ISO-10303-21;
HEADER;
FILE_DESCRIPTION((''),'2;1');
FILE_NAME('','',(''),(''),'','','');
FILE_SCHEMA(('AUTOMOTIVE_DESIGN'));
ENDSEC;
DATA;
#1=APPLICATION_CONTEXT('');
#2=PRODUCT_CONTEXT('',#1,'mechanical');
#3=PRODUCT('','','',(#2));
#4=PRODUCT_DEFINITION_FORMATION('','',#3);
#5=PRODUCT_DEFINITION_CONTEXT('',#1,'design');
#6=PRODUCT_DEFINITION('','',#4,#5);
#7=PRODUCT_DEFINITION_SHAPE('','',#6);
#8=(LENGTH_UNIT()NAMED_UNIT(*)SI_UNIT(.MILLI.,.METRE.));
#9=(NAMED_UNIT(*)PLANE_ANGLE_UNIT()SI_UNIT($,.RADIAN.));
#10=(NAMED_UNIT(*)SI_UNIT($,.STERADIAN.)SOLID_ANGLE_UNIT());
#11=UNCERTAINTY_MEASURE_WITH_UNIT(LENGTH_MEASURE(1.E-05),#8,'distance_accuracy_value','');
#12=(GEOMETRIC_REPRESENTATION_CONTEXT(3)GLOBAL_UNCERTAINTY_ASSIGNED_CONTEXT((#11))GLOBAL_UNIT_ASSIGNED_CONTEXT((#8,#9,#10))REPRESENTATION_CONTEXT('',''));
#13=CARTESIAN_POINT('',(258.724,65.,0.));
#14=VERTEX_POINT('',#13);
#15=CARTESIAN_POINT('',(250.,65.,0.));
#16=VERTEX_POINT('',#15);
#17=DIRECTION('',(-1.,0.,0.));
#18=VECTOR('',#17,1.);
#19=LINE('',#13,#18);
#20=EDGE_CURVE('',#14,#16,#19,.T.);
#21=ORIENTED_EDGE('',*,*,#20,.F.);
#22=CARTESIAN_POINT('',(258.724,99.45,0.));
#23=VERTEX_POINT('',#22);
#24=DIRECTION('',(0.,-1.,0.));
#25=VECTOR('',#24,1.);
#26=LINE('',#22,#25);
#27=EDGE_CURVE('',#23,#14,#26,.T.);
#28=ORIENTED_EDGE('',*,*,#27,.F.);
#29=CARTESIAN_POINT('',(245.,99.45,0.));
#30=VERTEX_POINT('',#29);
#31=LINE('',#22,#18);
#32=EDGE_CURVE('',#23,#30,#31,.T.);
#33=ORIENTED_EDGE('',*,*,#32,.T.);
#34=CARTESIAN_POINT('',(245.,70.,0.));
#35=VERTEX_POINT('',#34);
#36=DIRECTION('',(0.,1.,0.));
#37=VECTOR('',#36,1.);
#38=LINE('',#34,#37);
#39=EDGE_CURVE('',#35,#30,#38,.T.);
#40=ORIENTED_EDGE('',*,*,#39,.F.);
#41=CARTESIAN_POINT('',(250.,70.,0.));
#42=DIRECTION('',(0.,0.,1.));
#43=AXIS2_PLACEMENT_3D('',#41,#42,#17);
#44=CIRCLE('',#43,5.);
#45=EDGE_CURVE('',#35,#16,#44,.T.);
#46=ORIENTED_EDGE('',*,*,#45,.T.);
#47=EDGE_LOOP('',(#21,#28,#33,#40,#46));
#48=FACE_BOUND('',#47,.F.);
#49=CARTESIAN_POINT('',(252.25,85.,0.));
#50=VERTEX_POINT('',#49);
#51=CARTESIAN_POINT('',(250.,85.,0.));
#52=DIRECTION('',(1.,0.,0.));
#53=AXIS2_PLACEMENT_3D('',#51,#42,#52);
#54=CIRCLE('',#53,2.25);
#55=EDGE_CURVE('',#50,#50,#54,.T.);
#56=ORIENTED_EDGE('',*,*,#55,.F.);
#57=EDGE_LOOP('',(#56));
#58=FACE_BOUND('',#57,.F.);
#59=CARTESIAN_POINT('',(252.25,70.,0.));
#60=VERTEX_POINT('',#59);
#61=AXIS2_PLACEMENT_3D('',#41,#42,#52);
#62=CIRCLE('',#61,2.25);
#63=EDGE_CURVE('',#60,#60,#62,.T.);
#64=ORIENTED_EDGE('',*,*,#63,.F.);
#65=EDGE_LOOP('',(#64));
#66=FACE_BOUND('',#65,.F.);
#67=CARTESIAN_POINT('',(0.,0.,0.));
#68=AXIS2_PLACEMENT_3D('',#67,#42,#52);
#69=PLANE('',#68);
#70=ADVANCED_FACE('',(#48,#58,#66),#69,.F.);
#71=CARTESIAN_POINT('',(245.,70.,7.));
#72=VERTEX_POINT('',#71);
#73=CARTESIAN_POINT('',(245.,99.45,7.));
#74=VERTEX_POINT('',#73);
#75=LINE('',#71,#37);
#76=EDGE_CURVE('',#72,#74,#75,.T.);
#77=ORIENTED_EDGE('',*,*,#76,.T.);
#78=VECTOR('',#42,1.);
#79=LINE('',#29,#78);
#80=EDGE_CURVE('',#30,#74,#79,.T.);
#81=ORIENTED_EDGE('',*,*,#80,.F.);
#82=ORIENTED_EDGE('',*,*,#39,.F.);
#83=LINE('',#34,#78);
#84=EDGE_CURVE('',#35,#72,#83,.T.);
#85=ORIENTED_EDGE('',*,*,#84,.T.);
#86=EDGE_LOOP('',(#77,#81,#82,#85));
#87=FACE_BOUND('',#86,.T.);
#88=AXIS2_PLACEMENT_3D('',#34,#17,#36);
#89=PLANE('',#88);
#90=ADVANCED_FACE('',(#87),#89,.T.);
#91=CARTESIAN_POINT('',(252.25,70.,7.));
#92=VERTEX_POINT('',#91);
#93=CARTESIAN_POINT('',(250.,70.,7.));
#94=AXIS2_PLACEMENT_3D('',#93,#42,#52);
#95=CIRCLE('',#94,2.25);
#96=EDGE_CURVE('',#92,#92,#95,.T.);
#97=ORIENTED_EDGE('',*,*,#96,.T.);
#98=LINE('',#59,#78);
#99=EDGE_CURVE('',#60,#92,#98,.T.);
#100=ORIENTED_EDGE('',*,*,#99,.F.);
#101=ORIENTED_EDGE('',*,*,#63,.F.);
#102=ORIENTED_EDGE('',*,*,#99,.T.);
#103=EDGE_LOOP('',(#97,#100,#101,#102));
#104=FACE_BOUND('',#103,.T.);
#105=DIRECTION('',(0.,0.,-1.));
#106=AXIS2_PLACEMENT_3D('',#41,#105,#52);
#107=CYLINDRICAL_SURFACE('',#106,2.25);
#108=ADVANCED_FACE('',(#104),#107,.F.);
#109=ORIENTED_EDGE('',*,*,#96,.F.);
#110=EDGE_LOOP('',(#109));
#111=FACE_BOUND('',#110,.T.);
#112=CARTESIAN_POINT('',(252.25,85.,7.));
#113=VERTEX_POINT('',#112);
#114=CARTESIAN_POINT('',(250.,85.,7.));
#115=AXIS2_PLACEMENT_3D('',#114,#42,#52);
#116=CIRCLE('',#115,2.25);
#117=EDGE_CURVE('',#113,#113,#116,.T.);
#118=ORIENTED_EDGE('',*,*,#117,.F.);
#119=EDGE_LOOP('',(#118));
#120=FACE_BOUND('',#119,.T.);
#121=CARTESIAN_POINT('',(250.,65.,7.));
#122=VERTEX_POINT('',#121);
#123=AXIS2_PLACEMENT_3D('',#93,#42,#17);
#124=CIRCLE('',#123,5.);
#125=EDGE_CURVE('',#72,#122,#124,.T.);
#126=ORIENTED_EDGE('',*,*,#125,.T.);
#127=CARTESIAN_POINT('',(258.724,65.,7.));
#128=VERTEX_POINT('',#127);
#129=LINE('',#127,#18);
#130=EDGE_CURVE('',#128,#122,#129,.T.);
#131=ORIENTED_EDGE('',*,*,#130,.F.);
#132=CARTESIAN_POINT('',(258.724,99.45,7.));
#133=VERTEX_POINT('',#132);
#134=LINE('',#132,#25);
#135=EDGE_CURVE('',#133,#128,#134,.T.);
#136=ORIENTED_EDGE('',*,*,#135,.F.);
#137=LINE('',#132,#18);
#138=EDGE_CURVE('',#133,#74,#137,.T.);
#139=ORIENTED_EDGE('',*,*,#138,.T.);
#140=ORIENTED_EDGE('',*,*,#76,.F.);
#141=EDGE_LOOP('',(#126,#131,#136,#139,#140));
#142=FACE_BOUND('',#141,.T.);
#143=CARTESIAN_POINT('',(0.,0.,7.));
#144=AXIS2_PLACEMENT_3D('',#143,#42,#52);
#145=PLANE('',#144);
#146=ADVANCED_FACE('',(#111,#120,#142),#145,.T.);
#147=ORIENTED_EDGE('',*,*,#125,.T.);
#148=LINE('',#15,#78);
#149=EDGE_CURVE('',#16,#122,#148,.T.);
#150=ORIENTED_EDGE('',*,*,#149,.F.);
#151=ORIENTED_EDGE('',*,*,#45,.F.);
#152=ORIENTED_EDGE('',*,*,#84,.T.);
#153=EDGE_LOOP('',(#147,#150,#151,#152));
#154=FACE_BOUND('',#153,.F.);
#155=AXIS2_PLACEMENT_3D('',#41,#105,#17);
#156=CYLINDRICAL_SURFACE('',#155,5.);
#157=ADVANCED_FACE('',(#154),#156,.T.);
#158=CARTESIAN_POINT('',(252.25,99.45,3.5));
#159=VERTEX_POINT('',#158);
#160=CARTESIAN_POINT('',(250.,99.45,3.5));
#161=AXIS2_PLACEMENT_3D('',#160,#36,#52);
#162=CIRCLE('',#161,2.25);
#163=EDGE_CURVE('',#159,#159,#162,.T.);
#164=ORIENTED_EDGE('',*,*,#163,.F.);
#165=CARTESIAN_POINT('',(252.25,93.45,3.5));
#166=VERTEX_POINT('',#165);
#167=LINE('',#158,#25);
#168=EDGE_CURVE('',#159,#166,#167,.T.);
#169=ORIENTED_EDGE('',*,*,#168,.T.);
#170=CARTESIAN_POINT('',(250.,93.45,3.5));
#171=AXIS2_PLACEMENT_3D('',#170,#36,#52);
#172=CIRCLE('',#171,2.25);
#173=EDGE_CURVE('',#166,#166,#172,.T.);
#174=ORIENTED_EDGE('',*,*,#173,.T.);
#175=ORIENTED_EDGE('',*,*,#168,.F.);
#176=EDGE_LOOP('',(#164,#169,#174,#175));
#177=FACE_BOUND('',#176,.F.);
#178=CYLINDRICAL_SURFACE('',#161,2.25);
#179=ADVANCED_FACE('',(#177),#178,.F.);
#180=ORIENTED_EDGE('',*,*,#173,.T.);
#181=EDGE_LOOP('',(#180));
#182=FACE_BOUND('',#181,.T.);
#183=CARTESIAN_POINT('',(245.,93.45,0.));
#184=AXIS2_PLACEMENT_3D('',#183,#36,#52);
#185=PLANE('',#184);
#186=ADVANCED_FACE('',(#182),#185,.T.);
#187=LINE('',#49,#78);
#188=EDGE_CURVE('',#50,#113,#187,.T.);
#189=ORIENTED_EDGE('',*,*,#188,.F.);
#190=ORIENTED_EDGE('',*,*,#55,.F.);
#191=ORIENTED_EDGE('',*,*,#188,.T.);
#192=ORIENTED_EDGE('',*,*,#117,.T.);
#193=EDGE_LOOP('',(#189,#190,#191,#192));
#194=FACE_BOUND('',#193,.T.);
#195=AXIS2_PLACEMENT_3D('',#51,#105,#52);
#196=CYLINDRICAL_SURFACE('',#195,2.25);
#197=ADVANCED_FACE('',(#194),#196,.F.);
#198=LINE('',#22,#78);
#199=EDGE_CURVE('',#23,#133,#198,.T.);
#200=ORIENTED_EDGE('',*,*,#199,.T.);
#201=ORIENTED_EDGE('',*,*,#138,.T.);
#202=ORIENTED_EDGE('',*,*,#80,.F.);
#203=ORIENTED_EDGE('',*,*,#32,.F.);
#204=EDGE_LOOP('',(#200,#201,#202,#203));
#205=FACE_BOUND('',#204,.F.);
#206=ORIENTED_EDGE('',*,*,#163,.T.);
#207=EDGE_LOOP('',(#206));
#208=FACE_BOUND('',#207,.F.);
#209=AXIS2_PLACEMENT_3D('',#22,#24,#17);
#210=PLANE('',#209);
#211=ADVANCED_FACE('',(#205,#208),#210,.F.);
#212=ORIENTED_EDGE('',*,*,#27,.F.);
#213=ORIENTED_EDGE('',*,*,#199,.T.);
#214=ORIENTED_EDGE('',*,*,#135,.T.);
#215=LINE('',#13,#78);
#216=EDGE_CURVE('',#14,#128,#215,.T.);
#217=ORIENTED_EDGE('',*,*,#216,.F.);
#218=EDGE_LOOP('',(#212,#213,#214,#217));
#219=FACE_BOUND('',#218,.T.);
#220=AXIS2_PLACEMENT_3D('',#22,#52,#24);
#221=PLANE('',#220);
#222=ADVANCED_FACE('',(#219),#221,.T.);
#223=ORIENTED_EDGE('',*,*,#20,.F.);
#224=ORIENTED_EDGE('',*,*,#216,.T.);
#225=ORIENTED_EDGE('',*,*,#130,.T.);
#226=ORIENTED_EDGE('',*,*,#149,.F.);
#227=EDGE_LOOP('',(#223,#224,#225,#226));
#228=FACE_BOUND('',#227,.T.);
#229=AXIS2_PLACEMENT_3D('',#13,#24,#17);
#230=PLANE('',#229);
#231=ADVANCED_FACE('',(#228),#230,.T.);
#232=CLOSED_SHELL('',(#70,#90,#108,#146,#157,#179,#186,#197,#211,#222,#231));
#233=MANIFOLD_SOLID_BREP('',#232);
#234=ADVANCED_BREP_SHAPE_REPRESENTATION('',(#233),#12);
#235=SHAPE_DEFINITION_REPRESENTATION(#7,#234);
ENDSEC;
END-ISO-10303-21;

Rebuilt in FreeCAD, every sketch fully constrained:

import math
import FreeCAD as App
import Part
import Sketcher

V = App.Vector

doc = App.newDocument("Part")
body = doc.addObject("PartDesign::Body", "Body")

sketch1 = body.newObject("Sketcher::SketchObject", "Sketch")
sketch1.AttachmentSupport = (doc.getObject("XY_Plane"), [""])
sketch1.MapMode = "FlatFace"
sketch1.addGeometry(Part.LineSegment(V(258.724, 65, 0), V(258.724, 99.45, 0)), False)
sketch1.addGeometry(Part.LineSegment(V(258.724, 99.45, 0), V(245, 99.45, 0)), False)
sketch1.addGeometry(Part.LineSegment(V(245, 99.45, 0), V(245, 70, 0)), False)
sketch1.addGeometry(Part.ArcOfCircle(Part.Circle(V(250, 70, 0), V(0, 0, 1), 5), math.radians(180), math.radians(270)), False)
sketch1.addGeometry(Part.LineSegment(V(250, 65, 0), V(258.724, 65, 0)), False)
sketch1.addGeometry(Part.Circle(V(250, 70, 0), V(0, 0, 1), 2.25), False)
sketch1.addGeometry(Part.Circle(V(250, 85, 0), V(0, 0, 1), 2.25), False)
sketch1.addConstraint(Sketcher.Constraint("Coincident", 0, 2, 1, 1))
sketch1.addConstraint(Sketcher.Constraint("Coincident", 1, 2, 2, 1))
sketch1.addConstraint(Sketcher.Constraint("Tangent", 2, 2, 3, 1))
sketch1.addConstraint(Sketcher.Constraint("Tangent", 3, 2, 4, 1))
sketch1.addConstraint(Sketcher.Constraint("Coincident", 4, 2, 0, 1))
sketch1.addConstraint(Sketcher.Constraint("Vertical", 0))
sketch1.addConstraint(Sketcher.Constraint("Horizontal", 1))
sketch1.addConstraint(Sketcher.Constraint("Vertical", 2))
sketch1.addConstraint(Sketcher.Constraint("Horizontal", 4))
sketch1.addConstraint(Sketcher.Constraint("Coincident", 5, 3, 3, 3))
sketch1.addConstraint(Sketcher.Constraint("Equal", 5, 6))
sketch1.addConstraint(Sketcher.Constraint("Vertical", 5, 3, 6, 3))
sketch1.addConstraint(Sketcher.Constraint("Diameter", 5, 4.5))
sketch1.addConstraint(Sketcher.Constraint("Radius", 3, 5.0))
sketch1.addConstraint(Sketcher.Constraint("DistanceX", -1, 1, 3, 3, 250.0))
sketch1.addConstraint(Sketcher.Constraint("DistanceY", -1, 1, 3, 3, 70.0))
sketch1.addConstraint(Sketcher.Constraint("DistanceY", -1, 1, 6, 3, 85.0))
sketch1.addConstraint(Sketcher.Constraint("DistanceY", 0, 1, 0, 2, 34.45))
sketch1.addConstraint(Sketcher.Constraint("DistanceX", 1, 2, 1, 1, 13.724))
pad1 = body.newObject("PartDesign::Pad", "Pad")
pad1.Profile = sketch1
pad1.Length = 7

sketch2 = body.newObject("Sketcher::SketchObject", "Sketch001")
sketch2.AttachmentSupport = (doc.getObject("XZ_Plane"), [""])
sketch2.MapMode = "FlatFace"
sketch2.AttachmentOffset = App.Placement(V(0, 0, -99.45), App.Rotation())
sketch2.addGeometry(Part.Circle(V(250, 3.5, 0), V(0, 0, 1), 2.25), False)
sketch2.addConstraint(Sketcher.Constraint("Diameter", 0, 4.5))
sketch2.addConstraint(Sketcher.Constraint("DistanceX", -1, 1, 0, 3, 250.0))
sketch2.addConstraint(Sketcher.Constraint("DistanceY", -1, 1, 0, 3, 3.5))
pocket1 = body.newObject("PartDesign::Pocket", "Pocket")
pocket1.Profile = sketch2
pocket1.Length = 6
pocket1.Reversed = True

doc.recompute()
